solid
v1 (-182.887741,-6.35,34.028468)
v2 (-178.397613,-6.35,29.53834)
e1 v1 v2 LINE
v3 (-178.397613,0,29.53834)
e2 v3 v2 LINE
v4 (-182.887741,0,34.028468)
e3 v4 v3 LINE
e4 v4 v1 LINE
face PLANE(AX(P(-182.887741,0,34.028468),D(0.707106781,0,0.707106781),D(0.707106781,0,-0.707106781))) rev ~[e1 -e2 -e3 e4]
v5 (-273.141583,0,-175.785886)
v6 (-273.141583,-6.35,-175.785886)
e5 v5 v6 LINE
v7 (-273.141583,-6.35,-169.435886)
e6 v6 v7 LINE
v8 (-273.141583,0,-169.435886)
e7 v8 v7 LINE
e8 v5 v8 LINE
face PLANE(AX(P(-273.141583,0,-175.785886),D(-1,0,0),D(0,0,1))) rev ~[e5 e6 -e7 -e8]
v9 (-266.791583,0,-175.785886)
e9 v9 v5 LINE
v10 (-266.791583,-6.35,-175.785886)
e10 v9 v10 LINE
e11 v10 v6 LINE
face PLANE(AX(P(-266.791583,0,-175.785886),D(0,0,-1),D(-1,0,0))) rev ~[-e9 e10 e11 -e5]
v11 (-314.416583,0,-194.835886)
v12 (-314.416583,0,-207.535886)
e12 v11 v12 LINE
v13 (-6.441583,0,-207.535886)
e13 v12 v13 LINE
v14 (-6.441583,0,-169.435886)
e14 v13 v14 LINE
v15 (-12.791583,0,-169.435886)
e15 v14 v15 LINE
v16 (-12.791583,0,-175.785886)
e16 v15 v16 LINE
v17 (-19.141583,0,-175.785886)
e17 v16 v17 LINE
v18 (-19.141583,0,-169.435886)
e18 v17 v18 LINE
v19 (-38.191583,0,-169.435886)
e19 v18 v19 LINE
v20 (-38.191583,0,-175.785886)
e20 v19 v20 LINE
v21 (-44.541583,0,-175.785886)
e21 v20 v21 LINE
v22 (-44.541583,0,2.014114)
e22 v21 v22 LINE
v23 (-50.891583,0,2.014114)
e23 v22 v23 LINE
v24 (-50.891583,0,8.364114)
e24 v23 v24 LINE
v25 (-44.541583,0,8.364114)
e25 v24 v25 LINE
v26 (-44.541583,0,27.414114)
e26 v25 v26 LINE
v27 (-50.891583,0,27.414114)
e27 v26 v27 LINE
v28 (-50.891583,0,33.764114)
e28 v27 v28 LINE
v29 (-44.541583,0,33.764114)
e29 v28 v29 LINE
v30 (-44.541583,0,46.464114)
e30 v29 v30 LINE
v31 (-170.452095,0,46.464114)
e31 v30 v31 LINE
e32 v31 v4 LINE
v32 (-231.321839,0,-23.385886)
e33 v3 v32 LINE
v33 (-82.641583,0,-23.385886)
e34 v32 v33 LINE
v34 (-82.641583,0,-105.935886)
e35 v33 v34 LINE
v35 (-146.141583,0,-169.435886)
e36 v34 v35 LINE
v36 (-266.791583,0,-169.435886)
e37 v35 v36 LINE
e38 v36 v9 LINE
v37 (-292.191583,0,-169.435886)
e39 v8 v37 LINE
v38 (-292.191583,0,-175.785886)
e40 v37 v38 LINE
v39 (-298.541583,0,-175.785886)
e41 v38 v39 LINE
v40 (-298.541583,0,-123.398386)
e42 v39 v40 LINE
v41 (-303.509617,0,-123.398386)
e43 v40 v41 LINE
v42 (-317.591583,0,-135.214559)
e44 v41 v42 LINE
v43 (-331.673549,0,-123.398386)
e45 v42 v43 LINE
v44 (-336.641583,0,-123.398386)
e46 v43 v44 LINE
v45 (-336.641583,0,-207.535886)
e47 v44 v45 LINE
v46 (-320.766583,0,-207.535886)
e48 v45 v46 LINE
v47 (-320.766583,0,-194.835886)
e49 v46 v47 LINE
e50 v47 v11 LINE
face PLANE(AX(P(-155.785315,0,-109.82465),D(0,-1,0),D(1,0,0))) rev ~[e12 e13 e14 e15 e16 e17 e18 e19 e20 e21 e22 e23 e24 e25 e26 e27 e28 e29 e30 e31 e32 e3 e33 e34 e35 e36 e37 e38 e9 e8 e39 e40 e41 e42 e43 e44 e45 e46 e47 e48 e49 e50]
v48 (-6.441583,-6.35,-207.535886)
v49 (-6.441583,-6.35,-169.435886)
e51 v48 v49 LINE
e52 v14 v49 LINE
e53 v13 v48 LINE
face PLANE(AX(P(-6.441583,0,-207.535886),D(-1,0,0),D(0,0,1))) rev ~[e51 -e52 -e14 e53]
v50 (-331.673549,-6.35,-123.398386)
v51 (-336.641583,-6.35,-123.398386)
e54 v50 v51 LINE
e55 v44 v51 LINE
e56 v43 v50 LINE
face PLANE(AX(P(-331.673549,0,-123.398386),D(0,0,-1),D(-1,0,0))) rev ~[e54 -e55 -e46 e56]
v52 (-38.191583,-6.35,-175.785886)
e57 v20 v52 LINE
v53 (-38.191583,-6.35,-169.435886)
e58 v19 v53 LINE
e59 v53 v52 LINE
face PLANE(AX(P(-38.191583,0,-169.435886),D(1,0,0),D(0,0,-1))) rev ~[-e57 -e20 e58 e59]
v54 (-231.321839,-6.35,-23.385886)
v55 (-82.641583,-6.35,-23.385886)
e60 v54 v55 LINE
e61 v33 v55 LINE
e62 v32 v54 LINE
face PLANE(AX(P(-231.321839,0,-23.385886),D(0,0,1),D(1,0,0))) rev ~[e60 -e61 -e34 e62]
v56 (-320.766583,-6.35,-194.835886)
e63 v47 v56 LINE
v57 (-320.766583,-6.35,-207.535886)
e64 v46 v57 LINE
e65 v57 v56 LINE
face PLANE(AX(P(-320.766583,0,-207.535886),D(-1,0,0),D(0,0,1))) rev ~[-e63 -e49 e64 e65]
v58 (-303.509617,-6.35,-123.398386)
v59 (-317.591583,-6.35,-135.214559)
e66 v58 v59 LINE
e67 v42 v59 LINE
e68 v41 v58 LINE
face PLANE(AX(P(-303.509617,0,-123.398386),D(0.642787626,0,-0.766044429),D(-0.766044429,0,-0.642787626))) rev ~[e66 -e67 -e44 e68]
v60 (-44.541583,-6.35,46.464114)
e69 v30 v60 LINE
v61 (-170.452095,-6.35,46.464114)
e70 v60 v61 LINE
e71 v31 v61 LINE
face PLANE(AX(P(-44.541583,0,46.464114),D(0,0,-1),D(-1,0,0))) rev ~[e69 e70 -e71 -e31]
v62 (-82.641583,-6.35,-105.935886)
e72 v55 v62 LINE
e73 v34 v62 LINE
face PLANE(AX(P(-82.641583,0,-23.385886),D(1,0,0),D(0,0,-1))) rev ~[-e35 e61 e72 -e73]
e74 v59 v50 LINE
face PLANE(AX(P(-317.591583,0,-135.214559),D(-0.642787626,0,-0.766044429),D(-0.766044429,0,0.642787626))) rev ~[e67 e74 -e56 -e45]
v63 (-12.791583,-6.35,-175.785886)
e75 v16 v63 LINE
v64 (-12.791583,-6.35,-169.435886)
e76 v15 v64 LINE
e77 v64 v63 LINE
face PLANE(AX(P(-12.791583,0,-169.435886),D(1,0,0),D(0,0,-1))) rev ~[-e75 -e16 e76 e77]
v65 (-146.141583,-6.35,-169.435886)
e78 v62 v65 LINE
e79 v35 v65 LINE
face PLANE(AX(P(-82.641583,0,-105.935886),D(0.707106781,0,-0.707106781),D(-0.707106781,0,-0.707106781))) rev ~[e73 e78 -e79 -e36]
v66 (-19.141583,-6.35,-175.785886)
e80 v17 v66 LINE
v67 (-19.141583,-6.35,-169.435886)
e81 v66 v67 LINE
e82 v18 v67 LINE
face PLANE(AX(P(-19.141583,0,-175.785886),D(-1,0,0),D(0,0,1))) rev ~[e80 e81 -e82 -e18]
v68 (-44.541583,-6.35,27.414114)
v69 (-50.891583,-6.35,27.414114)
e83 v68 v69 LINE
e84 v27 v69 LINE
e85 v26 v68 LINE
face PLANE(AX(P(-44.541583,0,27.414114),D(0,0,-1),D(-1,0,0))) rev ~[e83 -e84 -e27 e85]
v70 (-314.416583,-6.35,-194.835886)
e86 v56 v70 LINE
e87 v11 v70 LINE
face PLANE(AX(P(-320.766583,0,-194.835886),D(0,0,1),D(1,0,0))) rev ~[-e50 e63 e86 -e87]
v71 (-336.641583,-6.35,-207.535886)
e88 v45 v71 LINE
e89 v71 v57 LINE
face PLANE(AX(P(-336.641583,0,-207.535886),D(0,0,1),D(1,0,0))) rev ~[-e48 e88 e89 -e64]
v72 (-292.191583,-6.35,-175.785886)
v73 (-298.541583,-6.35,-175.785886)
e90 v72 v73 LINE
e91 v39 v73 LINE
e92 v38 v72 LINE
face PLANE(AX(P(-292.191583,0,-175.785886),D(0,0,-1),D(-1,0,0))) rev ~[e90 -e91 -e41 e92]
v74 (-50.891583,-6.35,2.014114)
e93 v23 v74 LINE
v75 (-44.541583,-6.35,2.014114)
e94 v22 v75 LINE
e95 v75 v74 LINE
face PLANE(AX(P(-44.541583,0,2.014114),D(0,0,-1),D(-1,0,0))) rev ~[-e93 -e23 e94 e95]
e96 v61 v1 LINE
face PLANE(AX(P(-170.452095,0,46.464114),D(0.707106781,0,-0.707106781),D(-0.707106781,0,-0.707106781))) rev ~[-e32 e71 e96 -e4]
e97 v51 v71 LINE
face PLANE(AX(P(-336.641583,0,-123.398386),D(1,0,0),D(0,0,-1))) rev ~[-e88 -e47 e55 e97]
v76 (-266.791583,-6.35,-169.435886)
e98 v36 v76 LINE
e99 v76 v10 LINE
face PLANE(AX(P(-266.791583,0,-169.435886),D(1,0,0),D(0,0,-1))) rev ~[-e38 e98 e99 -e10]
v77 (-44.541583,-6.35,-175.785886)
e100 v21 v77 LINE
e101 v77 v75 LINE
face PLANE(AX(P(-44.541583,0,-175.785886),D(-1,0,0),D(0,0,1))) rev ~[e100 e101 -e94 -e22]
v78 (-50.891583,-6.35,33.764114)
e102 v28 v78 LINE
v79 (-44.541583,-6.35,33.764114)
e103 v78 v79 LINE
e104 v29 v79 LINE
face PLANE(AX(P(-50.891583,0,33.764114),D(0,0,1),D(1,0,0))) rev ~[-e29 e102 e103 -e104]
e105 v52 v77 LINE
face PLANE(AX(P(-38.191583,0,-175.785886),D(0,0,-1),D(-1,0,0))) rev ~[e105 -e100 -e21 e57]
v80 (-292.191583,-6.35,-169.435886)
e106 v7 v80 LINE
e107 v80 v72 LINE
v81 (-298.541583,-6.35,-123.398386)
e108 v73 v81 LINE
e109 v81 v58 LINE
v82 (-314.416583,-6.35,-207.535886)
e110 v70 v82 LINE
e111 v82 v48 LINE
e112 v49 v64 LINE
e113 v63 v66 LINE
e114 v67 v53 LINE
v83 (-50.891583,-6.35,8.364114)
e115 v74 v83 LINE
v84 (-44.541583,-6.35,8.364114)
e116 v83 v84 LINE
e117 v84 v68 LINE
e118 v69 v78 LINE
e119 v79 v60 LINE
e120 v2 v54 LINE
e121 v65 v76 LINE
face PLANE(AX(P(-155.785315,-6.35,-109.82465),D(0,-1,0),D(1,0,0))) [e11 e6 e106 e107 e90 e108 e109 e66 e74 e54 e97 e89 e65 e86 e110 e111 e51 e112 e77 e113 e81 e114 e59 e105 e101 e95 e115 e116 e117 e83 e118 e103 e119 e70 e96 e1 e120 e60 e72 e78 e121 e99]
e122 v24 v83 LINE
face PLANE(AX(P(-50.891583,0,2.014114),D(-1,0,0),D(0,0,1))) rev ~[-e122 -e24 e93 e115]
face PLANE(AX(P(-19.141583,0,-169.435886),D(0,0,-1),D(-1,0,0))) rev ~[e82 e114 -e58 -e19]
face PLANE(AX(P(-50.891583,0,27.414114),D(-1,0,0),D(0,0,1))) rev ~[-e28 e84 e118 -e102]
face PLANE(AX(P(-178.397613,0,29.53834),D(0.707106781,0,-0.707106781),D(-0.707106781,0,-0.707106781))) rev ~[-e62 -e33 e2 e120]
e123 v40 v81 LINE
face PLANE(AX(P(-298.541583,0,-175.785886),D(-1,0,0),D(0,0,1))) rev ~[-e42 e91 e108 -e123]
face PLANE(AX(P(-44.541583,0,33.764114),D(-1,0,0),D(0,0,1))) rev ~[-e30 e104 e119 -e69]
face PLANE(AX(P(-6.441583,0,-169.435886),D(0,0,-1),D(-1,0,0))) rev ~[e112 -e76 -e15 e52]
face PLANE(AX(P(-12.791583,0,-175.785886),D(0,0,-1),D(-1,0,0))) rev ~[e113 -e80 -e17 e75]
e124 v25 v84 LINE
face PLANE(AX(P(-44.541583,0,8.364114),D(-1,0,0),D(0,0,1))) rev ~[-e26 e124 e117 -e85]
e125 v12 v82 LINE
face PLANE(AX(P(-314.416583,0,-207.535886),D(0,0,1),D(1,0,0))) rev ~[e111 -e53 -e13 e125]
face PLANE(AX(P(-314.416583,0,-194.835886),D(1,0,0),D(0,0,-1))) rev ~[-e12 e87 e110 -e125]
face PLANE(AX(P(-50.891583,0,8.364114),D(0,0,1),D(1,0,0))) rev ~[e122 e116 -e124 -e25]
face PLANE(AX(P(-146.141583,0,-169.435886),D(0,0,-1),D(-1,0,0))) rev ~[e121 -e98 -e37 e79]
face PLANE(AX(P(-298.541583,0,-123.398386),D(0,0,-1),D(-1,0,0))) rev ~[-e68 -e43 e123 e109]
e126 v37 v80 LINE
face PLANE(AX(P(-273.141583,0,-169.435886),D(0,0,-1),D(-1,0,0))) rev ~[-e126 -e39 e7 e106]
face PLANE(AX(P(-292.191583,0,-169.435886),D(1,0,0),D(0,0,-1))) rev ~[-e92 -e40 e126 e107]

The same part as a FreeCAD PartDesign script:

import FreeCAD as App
import Part
import Sketcher
from FreeCAD import Vector
Q = App.Units.Quantity


def add_polygon(sketch, points):
    """Adds a closed chain of lines whose ends are joined by coincident constraints."""
    first, n = sketch.GeometryCount, len(points)
    for a, b in zip(points, points[1:] + points[:1]):
        sketch.addGeometry(Part.LineSegment(App.Vector(*a, 0), App.Vector(*b, 0)), False)
    for i in range(n):
        sketch.addConstraint(Sketcher.Constraint("Coincident", first + i, 2, first + (i + 1) % n, 1))

doc = App.newDocument("Part")
body = doc.addObject("PartDesign::Body", "Body")

# Sketch on XZ plane
sketch1 = doc.addObject("Sketcher::SketchObject", "Sketch")
body.addObject(sketch1)
sketch1.AttachmentSupport = (doc.XZ_Plane, [""])
sketch1.MapMode = "FlatFace"
add_polygon(sketch1, [(-82.6, -23.4), (-82.6, -105.9), (-146.1, -169.4), (-266.8, -169.4), (-266.8, -175.8), (-273.1, -175.8), (-273.1, -169.4), (-292.2, -169.4), (-292.2, -175.8), (-298.5, -175.8), (-298.5, -123.4), (-303.5, -123.4), (-317.6, -135.2), (-331.7, -123.4), (-336.6, -123.4), (-336.6, -207.5), (-320.8, -207.5), (-320.8, -194.8), (-314.4, -194.8), (-314.4, -207.5), (-6.4, -207.5), (-6.4, -169.4), (-12.8, -169.4), (-12.8, -175.8), (-19.1, -175.8), (-19.1, -169.4), (-38.2, -169.4), (-38.2, -175.8), (-44.5, -175.8), (-44.5, 2), (-50.9, 2), (-50.9, 8.4), (-44.5, 8.4), (-44.5, 27.4), (-50.9, 27.4), (-50.9, 33.8), (-44.5, 33.8), (-44.5, 46.5), (-170.5, 46.5), (-182.9, 34), (-178.4, 29.5), (-231.3, -23.4)])  # lines 0-41
sketch1.addConstraint(Sketcher.Constraint("Vertical", 0))
sketch1.addConstraint(Sketcher.Constraint("Horizontal", 2))
sketch1.addConstraint(Sketcher.Constraint("Vertical", 3))
sketch1.addConstraint(Sketcher.Constraint("Horizontal", 4))
sketch1.addConstraint(Sketcher.Constraint("Vertical", 5))
sketch1.addConstraint(Sketcher.Constraint("Horizontal", 6))
sketch1.addConstraint(Sketcher.Constraint("Vertical", 7))
sketch1.addConstraint(Sketcher.Constraint("Horizontal", 8))
sketch1.addConstraint(Sketcher.Constraint("Vertical", 9))
sketch1.addConstraint(Sketcher.Constraint("Horizontal", 10))
sketch1.addConstraint(Sketcher.Constraint("Horizontal", 13))
sketch1.addConstraint(Sketcher.Constraint("Vertical", 14))
sketch1.addConstraint(Sketcher.Constraint("Horizontal", 15))
sketch1.addConstraint(Sketcher.Constraint("Vertical", 16))
sketch1.addConstraint(Sketcher.Constraint("Horizontal", 17))
sketch1.addConstraint(Sketcher.Constraint("Vertical", 18))
sketch1.addConstraint(Sketcher.Constraint("Horizontal", 19))
sketch1.addConstraint(Sketcher.Constraint("Vertical", 20))
sketch1.addConstraint(Sketcher.Constraint("Horizontal", 21))
sketch1.addConstraint(Sketcher.Constraint("Vertical", 22))
sketch1.addConstraint(Sketcher.Constraint("Horizontal", 23))
sketch1.addConstraint(Sketcher.Constraint("Vertical", 24))
sketch1.addConstraint(Sketcher.Constraint("Horizontal", 25))
sketch1.addConstraint(Sketcher.Constraint("Vertical", 26))
sketch1.addConstraint(Sketcher.Constraint("Horizontal", 27))
sketch1.addConstraint(Sketcher.Constraint("Vertical", 28))
sketch1.addConstraint(Sketcher.Constraint("Horizontal", 29))
sketch1.addConstraint(Sketcher.Constraint("Vertical", 30))
sketch1.addConstraint(Sketcher.Constraint("Horizontal", 31))
sketch1.addConstraint(Sketcher.Constraint("Vertical", 32))
sketch1.addConstraint(Sketcher.Constraint("Horizontal", 33))
sketch1.addConstraint(Sketcher.Constraint("Vertical", 34))
sketch1.addConstraint(Sketcher.Constraint("Horizontal", 35))
sketch1.addConstraint(Sketcher.Constraint("Vertical", 36))
sketch1.addConstraint(Sketcher.Constraint("Horizontal", 37))
sketch1.addConstraint(Sketcher.Constraint("Horizontal", 41))
sketch1.addConstraint(Sketcher.Constraint("Parallel", 1, 38))
sketch1.addConstraint(Sketcher.Constraint("Perpendicular", 38, 39))
sketch1.addConstraint(Sketcher.Constraint("Perpendicular", 39, 40))
sketch1.addConstraint(Sketcher.Constraint("Horizontal", 2, 2, 5, 2))
sketch1.addConstraint(Sketcher.Constraint("Horizontal", 4, 2, 7, 2))
sketch1.addConstraint(Sketcher.Constraint("Horizontal", 10, 2, 12, 2))
sketch1.addConstraint(Sketcher.Constraint("Horizontal", 15, 2, 18, 2))
sketch1.addConstraint(Sketcher.Constraint("Horizontal", 6, 2, 20, 2))
sketch1.addConstraint(Sketcher.Constraint("Horizontal", 8, 2, 22, 2))
sketch1.addConstraint(Sketcher.Constraint("Horizontal", 21, 2, 24, 2))
sketch1.addConstraint(Sketcher.Constraint("Horizontal", 23, 2, 26, 2))
sketch1.addConstraint(Sketcher.Constraint("Vertical", 28, 2, 31, 2))
sketch1.addConstraint(Sketcher.Constraint("Vertical", 30, 2, 33, 2))
sketch1.addConstraint(Sketcher.Constraint("Vertical", 32, 2, 35, 2))
sketch1.addConstraint(Sketcher.Constraint("Equal", 4, 8))
sketch1.addConstraint(Sketcher.Constraint("Equal", 10, 13))
sketch1.addConstraint(Sketcher.Constraint("Equal", 8, 17))
sketch1.addConstraint(Sketcher.Constraint("Equal", 17, 21))
sketch1.addConstraint(Sketcher.Constraint("Equal", 21, 23))
sketch1.addConstraint(Sketcher.Constraint("Equal", 6, 25))
sketch1.addConstraint(Sketcher.Constraint("Equal", 23, 27))
sketch1.addConstraint(Sketcher.Constraint("Equal", 27, 29))
sketch1.addConstraint(Sketcher.Constraint("Equal", 35, 3))
sketch1.addConstraint(Sketcher.Constraint("Equal", 26, 30))
sketch1.addConstraint(Sketcher.Constraint("Equal", 25, 32))
sketch1.addConstraint(Sketcher.Constraint("Equal", 30, 34))
sketch1.addConstraint(Sketcher.Constraint("Equal", 18, 36))
sketch1.addConstraint(Sketcher.Constraint("Equal", 11, 12))
sketch1.addConstraint(Sketcher.Constraint("DistanceY", 28, 1, 28, 2, Q("7 in")))
sketch1.addConstraint(Sketcher.Constraint("DistanceY", 16, 1, 16, 2, Q("0.5 in")))
sketch1.addConstraint(Sketcher.Constraint("DistanceY", 20, 1, 20, 2, Q("1.5 in")))
sketch1.addConstraint(Sketcher.Constraint("Angle", 1, Q("-135 deg")))
sketch1.addConstraint(Sketcher.Constraint("Angle", 11, Q("-139.999999 deg")))
sketch1.addConstraint(Sketcher.Constraint("DistanceX", 4, 2, 1, 2, Q("5 in")))
sketch1.addConstraint(Sketcher.Constraint("DistanceX", 6, 2, 2, 2, Q("1 in")))
sketch1.addConstraint(Sketcher.Constraint("DistanceX", 11, 2, 6, 2, Q("1 in")))
sketch1.addConstraint(Sketcher.Constraint("DistanceX", 0, 2, 19, 2, Q("3 in")))
sketch1.addConstraint(Sketcher.Constraint("DistanceY", 19, 2, 0, 2, Q("4 in")))
sketch1.addConstraint(Sketcher.Constraint("DistanceX", 2, 2, 21, 2, Q("10 in")))
sketch1.addConstraint(Sketcher.Constraint("DistanceY", 41, 2, 29, 2, Q("1 in")))
sketch1.addConstraint(Sketcher.Constraint("Distance", 39, Q("0.25 in")))
sketch1.addConstraint(Sketcher.Constraint("DistanceX", 15, 1, 15, 2, Q("0.625 in")))
sketch1.addConstraint(Sketcher.Constraint("DistanceY", 9, 1, 9, 2, Q("2.0625 in")))
sketch1.addConstraint(Sketcher.Constraint("Distance", 11, 18.382701))
sketch1.addConstraint(Sketcher.Constraint("DistanceX", 40, 2, 38, 2, 48.434098))
sketch1.addConstraint(Sketcher.Constraint("DistanceX", 37, 2, 37, 1, 125.910512))
sketch1.addConstraint(Sketcher.Constraint("DistanceY", 11, 2, -1, 1, 135.214559))
sketch1.addConstraint(Sketcher.Constraint("DistanceX", 12, 2, -1, 1, 331.673549))
pad1 = doc.addObject("PartDesign::Pad", "Pad")
body.addObject(pad1)
pad1.Profile = sketch1
pad1.Length = Q("0.25 in")

doc.recompute()
